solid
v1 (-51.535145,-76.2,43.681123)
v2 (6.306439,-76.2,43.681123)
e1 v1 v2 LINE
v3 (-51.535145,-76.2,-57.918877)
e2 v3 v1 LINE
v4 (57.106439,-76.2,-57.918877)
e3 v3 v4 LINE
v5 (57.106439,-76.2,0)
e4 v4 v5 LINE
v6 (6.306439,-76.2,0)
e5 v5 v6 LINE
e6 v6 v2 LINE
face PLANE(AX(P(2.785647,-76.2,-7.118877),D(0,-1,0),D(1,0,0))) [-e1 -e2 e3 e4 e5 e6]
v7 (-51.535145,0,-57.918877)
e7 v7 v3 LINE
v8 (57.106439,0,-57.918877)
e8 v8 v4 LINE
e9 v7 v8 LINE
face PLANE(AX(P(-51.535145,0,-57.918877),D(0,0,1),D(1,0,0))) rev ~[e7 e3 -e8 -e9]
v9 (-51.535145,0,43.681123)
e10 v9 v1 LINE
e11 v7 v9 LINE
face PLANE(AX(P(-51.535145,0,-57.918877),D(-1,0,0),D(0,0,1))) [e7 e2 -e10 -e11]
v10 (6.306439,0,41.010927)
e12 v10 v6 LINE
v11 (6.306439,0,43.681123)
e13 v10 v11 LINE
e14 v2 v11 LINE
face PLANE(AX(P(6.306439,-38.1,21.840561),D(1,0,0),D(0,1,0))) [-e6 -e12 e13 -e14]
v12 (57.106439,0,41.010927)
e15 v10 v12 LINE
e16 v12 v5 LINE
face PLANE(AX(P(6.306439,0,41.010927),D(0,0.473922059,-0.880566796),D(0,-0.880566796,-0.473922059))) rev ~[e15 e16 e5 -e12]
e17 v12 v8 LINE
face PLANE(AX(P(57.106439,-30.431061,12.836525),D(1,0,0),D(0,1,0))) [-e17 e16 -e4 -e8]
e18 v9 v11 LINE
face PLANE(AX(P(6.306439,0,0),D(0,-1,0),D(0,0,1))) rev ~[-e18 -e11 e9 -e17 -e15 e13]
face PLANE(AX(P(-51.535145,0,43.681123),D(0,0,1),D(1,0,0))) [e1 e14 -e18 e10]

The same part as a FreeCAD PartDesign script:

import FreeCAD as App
import Part
import Sketcher
Q = App.Units.Quantity


def add_polygon(sketch, points):
    """Adds a closed chain of lines whose ends are joined by coincident constraints."""
    first, n = sketch.GeometryCount, len(points)
    for a, b in zip(points, points[1:] + points[:1]):
        sketch.addGeometry(Part.LineSegment(App.Vector(*a, 0), App.Vector(*b, 0)), False)
    for i in range(n):
        sketch.addConstraint(Sketcher.Constraint("Coincident", first + i, 2, first + (i + 1) % n, 1))

doc = App.newDocument("Part")
body = doc.addObject("PartDesign::Body", "Body")

sketch1 = body.newObject("Sketcher::SketchObject", "Sketch")
sketch1.AttachmentSupport = (doc.getObject("XZ_Plane"), [""])
sketch1.MapMode = "FlatFace"
add_polygon(sketch1, [(-52, 44), (-52, -58), (57, -58), (57, 44)])
sketch1.addConstraint([
    Sketcher.Constraint("Vertical", 0),
    Sketcher.Constraint("Horizontal", 1),
    Sketcher.Constraint("Vertical", 2),
    Sketcher.Constraint("Horizontal", 3),
    Sketcher.Constraint("DistanceY", 0, 2, 0, 1, Q("4 in")),
    Sketcher.Constraint("DistanceX", 1, 1, 1, 2, Q("108.641584 mm")),
    Sketcher.Constraint("DistanceX", -1, 1, 1, 2, Q("57.106439 mm")),
    Sketcher.Constraint("DistanceY", 0, 2, -1, 1, Q("57.918877 mm")),
])
pad1 = body.newObject("PartDesign::Pad", "Pad")
pad1.Profile = sketch1
pad1.Length = Q("3 in")

sketch2 = body.newObject("Sketcher::SketchObject", "Sketch001")
sketch2.AttachmentSupport = (doc.getObject("YZ_Plane"), [""])
sketch2.MapMode = "FlatFace"
sketch2.AttachmentOffset = App.Placement(App.Vector(0, 0, 57.106439), App.Rotation())
add_polygon(sketch2, [(-76, 44), (-76, 0), (0, 0), (0, 44)])
sketch2.addConstraint([
    Sketcher.Constraint("Vertical", 0),
    Sketcher.Constraint("Horizontal", 1),
    Sketcher.Constraint("Vertical", 2),
    Sketcher.Constraint("Horizontal", 3),
    Sketcher.Constraint("Coincident", 1, 2, -1, 1),
    Sketcher.Constraint("DistanceX", 1, 1, 1, 2, Q("3 in")),
    Sketcher.Constraint("DistanceY", 0, 2, 0, 1, Q("43.681123 mm")),
])
pocket1 = body.newObject("PartDesign::Pocket", "Pocket")
pocket1.Profile = sketch2
pocket1.Length = Q("2 in")

sketch3 = body.newObject("Sketcher::SketchObject", "Sketch002")
sketch3.AttachmentSupport = (doc.getObject("YZ_Plane"), [""])
sketch3.MapMode = "FlatFace"
sketch3.AttachmentOffset = App.Placement(App.Vector(0, 0, 6.306439), App.Rotation())
add_polygon(sketch3, [(0, 0), (0, 41), (-76, 0)])
sketch3.addConstraint([
    Sketcher.Constraint("Vertical", 0),
    Sketcher.Constraint("Horizontal", 2),
    Sketcher.Constraint("Coincident", 2, 2, -1, 1),
    Sketcher.Constraint("DistanceX", 2, 1, 2, 2, Q("3 in")),
    Sketcher.Constraint("DistanceY", 0, 1, 0, 2, Q("41.010927 mm")),
])
pad2 = body.newObject("PartDesign::Pad", "Pad001")
pad2.Profile = sketch3
pad2.Length = Q("2 in")

doc.recompute()
